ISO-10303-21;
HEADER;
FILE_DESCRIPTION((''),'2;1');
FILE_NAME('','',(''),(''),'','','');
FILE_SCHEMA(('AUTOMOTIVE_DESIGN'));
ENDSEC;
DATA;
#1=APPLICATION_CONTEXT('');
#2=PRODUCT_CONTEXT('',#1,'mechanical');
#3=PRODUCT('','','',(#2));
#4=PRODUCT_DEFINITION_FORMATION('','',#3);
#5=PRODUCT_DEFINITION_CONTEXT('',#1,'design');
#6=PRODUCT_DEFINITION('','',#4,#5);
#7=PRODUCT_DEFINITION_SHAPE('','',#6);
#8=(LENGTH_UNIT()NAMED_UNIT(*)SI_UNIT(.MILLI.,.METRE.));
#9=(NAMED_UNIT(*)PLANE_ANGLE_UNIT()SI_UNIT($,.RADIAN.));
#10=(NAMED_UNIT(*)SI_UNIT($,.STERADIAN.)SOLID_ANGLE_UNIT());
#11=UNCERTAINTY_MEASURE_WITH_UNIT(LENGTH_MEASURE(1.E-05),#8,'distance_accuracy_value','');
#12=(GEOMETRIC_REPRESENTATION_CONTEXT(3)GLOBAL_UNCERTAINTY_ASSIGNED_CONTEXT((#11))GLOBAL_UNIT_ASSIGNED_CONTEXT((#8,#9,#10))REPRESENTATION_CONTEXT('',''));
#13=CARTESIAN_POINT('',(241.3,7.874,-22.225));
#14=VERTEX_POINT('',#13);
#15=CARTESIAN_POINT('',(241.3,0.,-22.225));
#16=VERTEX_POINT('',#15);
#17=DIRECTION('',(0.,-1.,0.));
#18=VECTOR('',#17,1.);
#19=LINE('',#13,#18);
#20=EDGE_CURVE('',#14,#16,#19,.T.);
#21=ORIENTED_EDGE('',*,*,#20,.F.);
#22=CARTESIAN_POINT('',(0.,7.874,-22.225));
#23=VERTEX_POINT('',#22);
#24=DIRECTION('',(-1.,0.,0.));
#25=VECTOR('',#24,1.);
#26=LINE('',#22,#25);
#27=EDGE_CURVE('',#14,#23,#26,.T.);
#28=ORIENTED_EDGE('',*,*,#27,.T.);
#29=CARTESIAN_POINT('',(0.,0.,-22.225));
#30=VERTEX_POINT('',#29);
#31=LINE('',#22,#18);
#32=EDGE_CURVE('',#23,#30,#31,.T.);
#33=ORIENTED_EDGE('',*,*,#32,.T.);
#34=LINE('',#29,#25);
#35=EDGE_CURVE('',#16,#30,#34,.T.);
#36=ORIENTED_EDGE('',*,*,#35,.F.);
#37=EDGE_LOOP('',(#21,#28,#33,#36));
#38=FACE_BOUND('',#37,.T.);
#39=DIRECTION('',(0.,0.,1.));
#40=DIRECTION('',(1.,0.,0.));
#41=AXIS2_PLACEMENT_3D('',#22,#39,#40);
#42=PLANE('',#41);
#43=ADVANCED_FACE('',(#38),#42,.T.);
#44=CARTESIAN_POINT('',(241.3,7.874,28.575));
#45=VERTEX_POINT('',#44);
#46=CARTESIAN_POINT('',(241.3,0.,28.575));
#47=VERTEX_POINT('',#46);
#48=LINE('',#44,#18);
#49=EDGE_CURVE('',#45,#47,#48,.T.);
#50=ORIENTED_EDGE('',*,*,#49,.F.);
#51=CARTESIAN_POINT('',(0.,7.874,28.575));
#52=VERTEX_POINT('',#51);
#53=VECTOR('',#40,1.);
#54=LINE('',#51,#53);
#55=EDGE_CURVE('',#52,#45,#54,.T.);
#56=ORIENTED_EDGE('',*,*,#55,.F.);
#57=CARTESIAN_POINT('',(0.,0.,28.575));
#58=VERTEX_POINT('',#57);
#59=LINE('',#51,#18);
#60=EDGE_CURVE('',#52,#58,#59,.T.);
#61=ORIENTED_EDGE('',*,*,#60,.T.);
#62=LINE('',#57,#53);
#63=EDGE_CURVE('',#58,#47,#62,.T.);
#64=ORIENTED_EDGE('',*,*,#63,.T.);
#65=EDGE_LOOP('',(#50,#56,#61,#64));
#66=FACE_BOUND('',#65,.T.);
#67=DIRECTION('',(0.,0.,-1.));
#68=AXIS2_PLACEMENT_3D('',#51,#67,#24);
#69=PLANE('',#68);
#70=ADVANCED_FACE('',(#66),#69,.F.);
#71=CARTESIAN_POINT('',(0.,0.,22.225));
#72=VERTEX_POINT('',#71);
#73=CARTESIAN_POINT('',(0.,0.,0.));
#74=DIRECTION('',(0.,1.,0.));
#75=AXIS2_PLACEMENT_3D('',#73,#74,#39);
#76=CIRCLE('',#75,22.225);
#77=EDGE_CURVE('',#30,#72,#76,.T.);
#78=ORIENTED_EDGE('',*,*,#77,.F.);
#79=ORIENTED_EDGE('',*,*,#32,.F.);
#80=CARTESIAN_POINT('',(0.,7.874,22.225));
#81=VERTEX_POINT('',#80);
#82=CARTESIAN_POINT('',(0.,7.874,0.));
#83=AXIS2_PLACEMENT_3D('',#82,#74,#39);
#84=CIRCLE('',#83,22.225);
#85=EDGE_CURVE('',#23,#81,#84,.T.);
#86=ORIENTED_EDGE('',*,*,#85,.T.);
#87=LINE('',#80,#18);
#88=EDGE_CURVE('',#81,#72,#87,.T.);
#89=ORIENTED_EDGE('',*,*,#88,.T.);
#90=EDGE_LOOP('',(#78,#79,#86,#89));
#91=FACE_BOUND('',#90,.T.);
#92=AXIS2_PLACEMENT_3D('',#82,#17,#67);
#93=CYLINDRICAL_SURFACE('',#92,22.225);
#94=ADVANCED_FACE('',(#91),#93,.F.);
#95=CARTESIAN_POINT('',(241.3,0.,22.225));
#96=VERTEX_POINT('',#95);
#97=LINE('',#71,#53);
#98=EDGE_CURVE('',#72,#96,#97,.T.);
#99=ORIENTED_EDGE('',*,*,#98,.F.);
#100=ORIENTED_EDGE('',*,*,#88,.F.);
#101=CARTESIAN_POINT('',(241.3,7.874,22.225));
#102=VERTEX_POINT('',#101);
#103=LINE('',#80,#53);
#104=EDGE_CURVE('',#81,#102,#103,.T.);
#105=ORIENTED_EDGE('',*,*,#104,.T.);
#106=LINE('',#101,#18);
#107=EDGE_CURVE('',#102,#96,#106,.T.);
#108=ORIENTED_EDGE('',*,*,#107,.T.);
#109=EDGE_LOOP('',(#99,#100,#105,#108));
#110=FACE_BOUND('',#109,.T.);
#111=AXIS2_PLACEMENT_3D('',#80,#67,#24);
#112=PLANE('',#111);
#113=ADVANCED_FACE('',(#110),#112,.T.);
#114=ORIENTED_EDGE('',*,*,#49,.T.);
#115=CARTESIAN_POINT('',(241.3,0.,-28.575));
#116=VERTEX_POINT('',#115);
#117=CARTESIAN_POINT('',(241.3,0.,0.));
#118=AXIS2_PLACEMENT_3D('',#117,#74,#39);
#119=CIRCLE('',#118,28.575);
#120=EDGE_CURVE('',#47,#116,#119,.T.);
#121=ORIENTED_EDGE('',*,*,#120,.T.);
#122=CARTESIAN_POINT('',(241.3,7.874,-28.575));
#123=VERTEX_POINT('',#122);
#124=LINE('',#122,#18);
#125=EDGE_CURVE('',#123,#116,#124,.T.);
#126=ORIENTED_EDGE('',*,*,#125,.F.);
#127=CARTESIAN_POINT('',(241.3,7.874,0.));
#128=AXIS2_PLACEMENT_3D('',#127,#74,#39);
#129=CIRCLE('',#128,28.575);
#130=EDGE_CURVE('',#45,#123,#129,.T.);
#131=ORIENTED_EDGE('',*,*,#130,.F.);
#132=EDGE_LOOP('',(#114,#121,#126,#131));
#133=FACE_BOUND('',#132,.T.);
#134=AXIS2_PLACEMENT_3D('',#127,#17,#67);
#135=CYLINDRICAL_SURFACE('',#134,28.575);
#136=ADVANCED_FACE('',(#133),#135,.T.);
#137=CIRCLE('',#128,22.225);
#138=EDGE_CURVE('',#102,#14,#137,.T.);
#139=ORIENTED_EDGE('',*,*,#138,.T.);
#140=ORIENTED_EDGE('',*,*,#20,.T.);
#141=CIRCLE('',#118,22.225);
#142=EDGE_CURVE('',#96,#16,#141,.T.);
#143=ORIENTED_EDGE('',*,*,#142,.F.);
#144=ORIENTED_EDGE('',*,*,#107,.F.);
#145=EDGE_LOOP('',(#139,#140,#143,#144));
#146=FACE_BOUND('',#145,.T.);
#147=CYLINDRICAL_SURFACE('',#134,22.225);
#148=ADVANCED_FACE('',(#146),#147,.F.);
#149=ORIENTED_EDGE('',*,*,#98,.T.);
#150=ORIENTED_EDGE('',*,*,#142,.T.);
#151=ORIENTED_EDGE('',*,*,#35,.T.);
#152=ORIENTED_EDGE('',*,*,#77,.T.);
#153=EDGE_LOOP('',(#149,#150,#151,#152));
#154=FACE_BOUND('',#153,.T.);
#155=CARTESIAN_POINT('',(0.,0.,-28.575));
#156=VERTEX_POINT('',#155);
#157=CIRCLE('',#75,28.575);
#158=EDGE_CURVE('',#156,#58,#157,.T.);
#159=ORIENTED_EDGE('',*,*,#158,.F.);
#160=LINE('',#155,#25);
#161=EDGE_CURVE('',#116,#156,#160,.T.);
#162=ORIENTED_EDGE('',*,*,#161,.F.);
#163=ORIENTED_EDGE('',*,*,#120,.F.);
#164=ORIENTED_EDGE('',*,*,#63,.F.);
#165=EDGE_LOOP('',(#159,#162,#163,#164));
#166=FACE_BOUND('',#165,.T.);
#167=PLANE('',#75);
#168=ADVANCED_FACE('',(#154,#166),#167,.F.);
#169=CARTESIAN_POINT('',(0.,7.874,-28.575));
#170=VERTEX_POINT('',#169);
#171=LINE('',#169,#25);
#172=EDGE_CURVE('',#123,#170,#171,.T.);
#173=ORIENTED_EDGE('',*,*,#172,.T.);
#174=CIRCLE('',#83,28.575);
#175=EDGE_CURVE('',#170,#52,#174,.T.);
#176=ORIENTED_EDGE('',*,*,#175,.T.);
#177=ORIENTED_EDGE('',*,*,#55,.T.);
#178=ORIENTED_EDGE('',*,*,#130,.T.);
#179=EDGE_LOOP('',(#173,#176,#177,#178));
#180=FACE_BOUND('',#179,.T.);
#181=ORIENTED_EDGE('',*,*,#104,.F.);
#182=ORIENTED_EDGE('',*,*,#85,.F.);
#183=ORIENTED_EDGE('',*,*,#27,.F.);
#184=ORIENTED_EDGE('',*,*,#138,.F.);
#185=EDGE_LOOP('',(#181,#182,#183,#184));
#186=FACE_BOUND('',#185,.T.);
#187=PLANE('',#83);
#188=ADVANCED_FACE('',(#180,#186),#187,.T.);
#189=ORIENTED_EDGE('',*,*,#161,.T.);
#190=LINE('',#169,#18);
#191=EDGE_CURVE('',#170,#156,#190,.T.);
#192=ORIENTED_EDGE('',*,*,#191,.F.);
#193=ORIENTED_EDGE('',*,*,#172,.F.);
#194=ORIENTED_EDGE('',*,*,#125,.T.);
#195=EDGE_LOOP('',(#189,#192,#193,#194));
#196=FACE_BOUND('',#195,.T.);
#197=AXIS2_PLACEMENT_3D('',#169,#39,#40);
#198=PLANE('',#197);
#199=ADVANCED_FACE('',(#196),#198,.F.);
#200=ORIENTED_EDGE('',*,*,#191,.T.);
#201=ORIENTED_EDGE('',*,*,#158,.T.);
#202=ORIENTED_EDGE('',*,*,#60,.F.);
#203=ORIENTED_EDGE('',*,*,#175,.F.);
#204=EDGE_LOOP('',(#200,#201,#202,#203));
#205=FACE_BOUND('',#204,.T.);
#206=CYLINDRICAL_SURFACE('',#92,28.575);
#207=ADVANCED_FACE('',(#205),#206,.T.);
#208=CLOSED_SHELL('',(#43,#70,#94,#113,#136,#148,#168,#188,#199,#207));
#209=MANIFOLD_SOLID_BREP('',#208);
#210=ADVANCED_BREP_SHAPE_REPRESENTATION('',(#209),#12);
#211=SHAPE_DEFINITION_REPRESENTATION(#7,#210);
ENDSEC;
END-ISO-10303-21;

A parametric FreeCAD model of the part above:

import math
import FreeCAD as App
import Part
import Sketcher

V = App.Vector
Q = App.Units.Quantity

doc = App.newDocument("Part")
body = doc.addObject("PartDesign::Body", "Body")

# Sketch on XZ plane
sketch1 = doc.addObject("Sketcher::SketchObject", "Sketch")
body.addObject(sketch1)
sketch1.AttachmentSupport = (doc.XZ_Plane, [""])
sketch1.MapMode = "FlatFace"
sketch1.addGeometry([
    Part.LineSegment(V(241, -29, 0), V(0, -29, 0)),  # 0
    Part.ArcOfCircle(Part.Circle(V(0, 0, 0), V(0, 0, 1), 29), math.radians(90), math.radians(270)),  # 1
    Part.LineSegment(V(0, 29, 0), V(241, 29, 0)),  # 2
    Part.ArcOfCircle(Part.Circle(V(241, 0, 0), V(0, 0, 1), 29), math.radians(-90), math.radians(90)),  # 3
    Part.LineSegment(V(0, -22, 0), V(241, -22, 0)),  # 4
    Part.ArcOfCircle(Part.Circle(V(241, 0, 0), V(0, 0, 1), 22), math.radians(-90), math.radians(90)),  # 5
    Part.LineSegment(V(241, 22, 0), V(0, 22, 0)),  # 6
    Part.ArcOfCircle(Part.Circle(V(0, 0, 0), V(0, 0, 1), 22), math.radians(90), math.radians(270)),  # 7
], False)
sketch1.addConstraint([
    Sketcher.Constraint("Tangent", 0, 2, 1, 2),
    Sketcher.Constraint("Tangent", 1, 1, 2, 1),
    Sketcher.Constraint("Tangent", 2, 2, 3, 2),
    Sketcher.Constraint("Tangent", 3, 1, 0, 1),
    Sketcher.Constraint("Tangent", 4, 2, 5, 1),
    Sketcher.Constraint("Tangent", 5, 2, 6, 1),
    Sketcher.Constraint("Tangent", 6, 2, 7, 1),
    Sketcher.Constraint("Tangent", 7, 2, 4, 1),
    Sketcher.Constraint("Horizontal", 0),
    Sketcher.Constraint("Horizontal", 2),
    Sketcher.Constraint("Horizontal", 4),
    Sketcher.Constraint("Horizontal", 6),
    Sketcher.Constraint("Coincident", 1, 3, -1, 1),
    Sketcher.Constraint("Coincident", 7, 3, -1, 1),
    Sketcher.Constraint("Vertical", 5, 3, 2, 2),
    Sketcher.Constraint("DistanceX", 0, 2, 0, 1, Q("9.5 in")),
    Sketcher.Constraint("Radius", 1, Q("1.125 in")),
    Sketcher.Constraint("Radius", 5, Q("0.875 in")),
])
pad1 = doc.addObject("PartDesign::Pad", "Pad")
body.addObject(pad1)
pad1.Profile = sketch1
pad1.Length = Q("0.31 in")
pad1.Reversed = True

doc.recompute()
